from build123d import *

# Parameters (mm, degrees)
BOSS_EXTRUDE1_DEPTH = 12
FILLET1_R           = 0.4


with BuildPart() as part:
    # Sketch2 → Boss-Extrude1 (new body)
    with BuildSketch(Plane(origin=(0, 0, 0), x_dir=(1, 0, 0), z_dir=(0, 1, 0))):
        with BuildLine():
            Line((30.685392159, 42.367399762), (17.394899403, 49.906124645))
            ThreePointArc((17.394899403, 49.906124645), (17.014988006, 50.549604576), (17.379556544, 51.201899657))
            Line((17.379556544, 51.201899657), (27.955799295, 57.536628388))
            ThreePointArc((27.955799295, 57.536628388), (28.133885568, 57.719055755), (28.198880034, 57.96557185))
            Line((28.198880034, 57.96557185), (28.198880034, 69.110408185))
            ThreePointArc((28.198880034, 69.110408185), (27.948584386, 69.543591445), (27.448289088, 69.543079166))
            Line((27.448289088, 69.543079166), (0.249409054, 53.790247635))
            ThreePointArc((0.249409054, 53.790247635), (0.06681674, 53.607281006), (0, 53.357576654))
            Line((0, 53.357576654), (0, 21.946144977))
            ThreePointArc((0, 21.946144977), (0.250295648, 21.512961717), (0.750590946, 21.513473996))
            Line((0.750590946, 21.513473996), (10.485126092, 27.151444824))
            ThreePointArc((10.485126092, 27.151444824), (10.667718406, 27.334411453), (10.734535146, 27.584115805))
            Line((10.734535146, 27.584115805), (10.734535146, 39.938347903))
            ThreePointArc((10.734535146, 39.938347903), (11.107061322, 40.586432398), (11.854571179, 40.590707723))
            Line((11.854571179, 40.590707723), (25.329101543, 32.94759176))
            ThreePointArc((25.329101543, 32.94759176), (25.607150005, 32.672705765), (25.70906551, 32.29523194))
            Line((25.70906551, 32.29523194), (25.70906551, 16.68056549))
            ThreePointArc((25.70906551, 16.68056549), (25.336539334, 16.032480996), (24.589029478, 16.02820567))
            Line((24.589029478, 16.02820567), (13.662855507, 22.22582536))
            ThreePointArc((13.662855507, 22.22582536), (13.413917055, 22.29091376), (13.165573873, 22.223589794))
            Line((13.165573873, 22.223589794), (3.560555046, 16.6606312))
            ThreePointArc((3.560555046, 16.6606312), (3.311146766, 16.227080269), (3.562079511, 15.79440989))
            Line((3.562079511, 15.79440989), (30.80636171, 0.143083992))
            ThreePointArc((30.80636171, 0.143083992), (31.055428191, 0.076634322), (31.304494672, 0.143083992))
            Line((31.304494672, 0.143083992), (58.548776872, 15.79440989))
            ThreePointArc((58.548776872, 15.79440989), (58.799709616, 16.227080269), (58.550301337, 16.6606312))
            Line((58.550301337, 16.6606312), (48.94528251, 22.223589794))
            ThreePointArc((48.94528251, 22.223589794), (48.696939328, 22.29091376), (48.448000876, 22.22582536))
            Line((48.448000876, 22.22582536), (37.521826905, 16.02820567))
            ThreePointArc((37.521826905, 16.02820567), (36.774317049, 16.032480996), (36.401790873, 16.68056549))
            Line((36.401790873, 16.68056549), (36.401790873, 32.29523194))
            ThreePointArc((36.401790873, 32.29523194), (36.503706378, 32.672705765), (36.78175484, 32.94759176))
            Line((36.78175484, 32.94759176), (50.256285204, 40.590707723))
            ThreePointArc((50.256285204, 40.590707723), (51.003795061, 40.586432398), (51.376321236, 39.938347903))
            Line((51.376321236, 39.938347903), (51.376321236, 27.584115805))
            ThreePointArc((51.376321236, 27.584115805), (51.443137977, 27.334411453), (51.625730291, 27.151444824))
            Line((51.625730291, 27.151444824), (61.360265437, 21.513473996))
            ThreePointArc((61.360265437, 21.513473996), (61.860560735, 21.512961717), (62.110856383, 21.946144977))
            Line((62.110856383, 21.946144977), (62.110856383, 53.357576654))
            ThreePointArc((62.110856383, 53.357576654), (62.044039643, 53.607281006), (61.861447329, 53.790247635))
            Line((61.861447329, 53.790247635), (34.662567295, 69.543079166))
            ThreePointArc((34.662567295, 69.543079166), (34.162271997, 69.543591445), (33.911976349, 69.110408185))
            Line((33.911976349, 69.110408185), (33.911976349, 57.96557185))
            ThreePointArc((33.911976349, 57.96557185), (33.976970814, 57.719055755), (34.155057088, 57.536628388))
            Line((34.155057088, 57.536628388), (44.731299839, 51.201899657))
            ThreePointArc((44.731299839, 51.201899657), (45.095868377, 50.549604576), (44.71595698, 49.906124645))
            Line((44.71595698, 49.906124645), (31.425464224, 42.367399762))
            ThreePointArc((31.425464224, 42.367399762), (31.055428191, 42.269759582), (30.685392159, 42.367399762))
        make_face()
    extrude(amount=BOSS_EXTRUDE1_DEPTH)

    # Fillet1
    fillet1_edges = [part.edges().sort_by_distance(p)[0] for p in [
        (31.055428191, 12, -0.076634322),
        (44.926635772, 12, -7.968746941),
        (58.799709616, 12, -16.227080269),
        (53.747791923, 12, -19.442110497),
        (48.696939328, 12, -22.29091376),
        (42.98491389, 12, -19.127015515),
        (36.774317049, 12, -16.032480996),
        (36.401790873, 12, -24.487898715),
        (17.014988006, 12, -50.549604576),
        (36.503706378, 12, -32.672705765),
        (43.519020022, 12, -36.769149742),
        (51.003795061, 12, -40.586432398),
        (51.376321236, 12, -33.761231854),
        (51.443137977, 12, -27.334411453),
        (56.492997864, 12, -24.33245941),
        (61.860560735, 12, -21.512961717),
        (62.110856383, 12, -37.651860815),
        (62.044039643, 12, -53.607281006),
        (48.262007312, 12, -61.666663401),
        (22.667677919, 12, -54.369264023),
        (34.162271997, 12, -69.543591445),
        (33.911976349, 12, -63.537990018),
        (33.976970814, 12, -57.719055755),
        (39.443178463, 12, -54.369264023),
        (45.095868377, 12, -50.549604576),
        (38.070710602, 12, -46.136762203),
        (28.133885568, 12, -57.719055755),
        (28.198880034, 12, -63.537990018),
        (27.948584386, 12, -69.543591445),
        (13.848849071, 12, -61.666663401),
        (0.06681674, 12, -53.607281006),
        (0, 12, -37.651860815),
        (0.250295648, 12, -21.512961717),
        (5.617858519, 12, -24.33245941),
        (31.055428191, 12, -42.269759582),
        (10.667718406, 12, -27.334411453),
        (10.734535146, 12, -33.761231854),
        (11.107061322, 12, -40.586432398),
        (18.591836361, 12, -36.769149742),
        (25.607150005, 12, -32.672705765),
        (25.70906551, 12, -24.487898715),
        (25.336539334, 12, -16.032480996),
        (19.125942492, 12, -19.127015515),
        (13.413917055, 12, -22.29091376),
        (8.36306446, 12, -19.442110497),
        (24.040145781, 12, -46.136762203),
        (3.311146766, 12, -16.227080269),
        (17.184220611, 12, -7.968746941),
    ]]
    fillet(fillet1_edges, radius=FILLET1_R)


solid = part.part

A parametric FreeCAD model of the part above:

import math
import FreeCAD as App
import Part
import Sketcher


def edges_at(feature, points):
    """Names of the edges that pass closest to the given points."""
    edges = feature.Shape.Edges
    near = lambda p: min(range(len(edges)), key=lambda i: edges[i].distToShape(Part.Vertex(*p))[0])
    return sorted({f"Edge{near(p) + 1}" for p in points})

doc = App.newDocument("Part")
params = doc.addObject("Spreadsheet::Sheet", "Params")
for row, (alias, value) in enumerate([
    ("sketch1_radius", "0.5 mm"),
    ("sketch1_radius2", "0.5 mm"),
    ("sketch1_radius3", "0.5 mm"),
    ("sketch1_radius4", "0.5 mm"),
    ("sketch1_radius5", "0.5 mm"),
    ("pad1_length", "12 mm"),
    ("fillet_radius", "0.4 mm"),
], start=1):
    params.set(f"A{row}", alias)
    params.set(f"B{row}", "=" + value)
    params.setAlias(f"B{row}", alias)

body = doc.addObject("PartDesign::Body", "Body")

# Sketch on XZ plane
sketch1 = body.newObject("Sketcher::SketchObject", "Sketch")
sketch1.AttachmentSupport = (doc.getObject("XZ_Plane"), [""])
sketch1.MapMode = "FlatFace"
sketch1.addGeometry([
    Part.LineSegment(App.Vector(30.685392, -42.3674, 0), App.Vector(17.394899, -49.906125, 0)),  # 0
    Part.ArcOfCircle(Part.Circle(App.Vector(17.764935, -50.558484, 0), App.Vector(0, 0, 1), 0.75), math.radians(119.563073), math.radians(239.080148)),  # 1
    Part.LineSegment(App.Vector(17.379557, -51.2019, 0), App.Vector(27.955799, -57.536628, 0)),  # 2
    Part.ArcOfCircle(Part.Circle(App.Vector(27.69888, -57.965572, 0), App.Vector(0, 0, 1), 0.5), math.radians(0), math.radians(59.080148)),  # 3
    Part.LineSegment(App.Vector(28.19888, -57.965572, 0), App.Vector(28.19888, -69.110408, 0)),  # 4
    Part.ArcOfCircle(Part.Circle(App.Vector(27.69888, -69.110408, 0), App.Vector(0, 0, 1), 0.5), math.radians(-120.078224), math.radians(0)),  # 5
    Part.LineSegment(App.Vector(27.448289, -69.543079, 0), App.Vector(0.249409, -53.790248, 0)),  # 6
    Part.ArcOfCircle(Part.Circle(App.Vector(0.5, -53.357577, 0), App.Vector(0, 0, 1), 0.5), math.radians(180), math.radians(239.921776)),  # 7
    Part.LineSegment(App.Vector(0, -53.357577, 0), App.Vector(0, -21.946145, 0)),  # 8
    Part.ArcOfCircle(Part.Circle(App.Vector(0.5, -21.946145, 0), App.Vector(0, 0, 1), 0.5), math.radians(59.921776), math.radians(180)),  # 9
    Part.LineSegment(App.Vector(0.750591, -21.513474, 0), App.Vector(10.485126, -27.151445, 0)),  # 10
    Part.ArcOfCircle(Part.Circle(App.Vector(10.234535, -27.584116, 0), App.Vector(0, 0, 1), 0.5), math.radians(0), math.radians(59.921776)),  # 11
    Part.LineSegment(App.Vector(10.734535, -27.584116, 0), App.Vector(10.734535, -39.938348, 0)),  # 12
    Part.ArcOfCircle(Part.Circle(App.Vector(11.484535, -39.938348, 0), App.Vector(0, 0, 1), 0.75), math.radians(180), math.radians(299.563073)),  # 13
    Part.LineSegment(App.Vector(11.854571, -40.590708, 0), App.Vector(25.329102, -32.947592, 0)),  # 14
    Part.ArcOfCircle(Part.Circle(App.Vector(24.959066, -32.295232, 0), App.Vector(0, 0, 1), 0.75), math.radians(-60.436927), math.radians(0)),  # 15
    Part.LineSegment(App.Vector(25.709066, -32.295232, 0), App.Vector(25.709066, -16.680565, 0)),  # 16
    Part.ArcOfCircle(Part.Circle(App.Vector(24.959066, -16.680565, 0), App.Vector(0, 0, 1), 0.75), math.radians(0), math.radians(119.563073)),  # 17
    Part.LineSegment(App.Vector(24.589029, -16.028206, 0), App.Vector(13.662856, -22.225825, 0)),  # 18
    Part.ArcOfCircle(Part.Circle(App.Vector(13.416165, -21.790919, 0), App.Vector(0, 0, 1), 0.5), math.radians(-120.078224), math.radians(-60.436927)),  # 19
    Part.LineSegment(App.Vector(13.165574, -22.22359, 0), App.Vector(3.560555, -16.660631, 0)),  # 20
    Part.ArcOfCircle(Part.Circle(App.Vector(3.811146, -16.22796, 0), App.Vector(0, 0, 1), 0.5), math.radians(119.876554), math.radians(239.921776)),  # 21
    Part.LineSegment(App.Vector(3.56208, -15.79441, 0), App.Vector(30.806362, -0.143084, 0)),  # 22
    Part.ArcOfCircle(Part.Circle(App.Vector(31.055428, -0.576634, 0), App.Vector(0, 0, 1), 0.5), math.radians(60.123446), math.radians(119.876554)),  # 23
    Part.LineSegment(App.Vector(31.304495, -0.143084, 0), App.Vector(58.548777, -15.79441, 0)),  # 24
    Part.ArcOfCircle(Part.Circle(App.Vector(58.29971, -16.22796, 0), App.Vector(0, 0, 1), 0.5), math.radians(-59.921776), math.radians(60.123445)),  # 25
    Part.LineSegment(App.Vector(58.550301, -16.660631, 0), App.Vector(48.945283, -22.22359, 0)),  # 26
    Part.ArcOfCircle(Part.Circle(App.Vector(48.694692, -21.790919, 0), App.Vector(0, 0, 1), 0.5), math.radians(-119.563073), math.radians(-59.921776)),  # 27
    Part.LineSegment(App.Vector(48.448001, -22.225825, 0), App.Vector(37.521827, -16.028206, 0)),  # 28
    Part.ArcOfCircle(Part.Circle(App.Vector(37.151791, -16.680565, 0), App.Vector(0, 0, 1), 0.75), math.radians(60.436927), math.radians(180)),  # 29
    Part.LineSegment(App.Vector(36.401791, -16.680565, 0), App.Vector(36.401791, -32.295232, 0)),  # 30
    Part.ArcOfCircle(Part.Circle(App.Vector(37.151791, -32.295232, 0), App.Vector(0, 0, 1), 0.75), math.radians(180), math.radians(240.436927)),  # 31
    Part.LineSegment(App.Vector(36.781755, -32.947592, 0), App.Vector(50.256285, -40.590708, 0)),  # 32
    Part.ArcOfCircle(Part.Circle(App.Vector(50.626321, -39.938348, 0), App.Vector(0, 0, 1), 0.75), math.radians(-119.563073), math.radians(0)),  # 33
    Part.LineSegment(App.Vector(51.376321, -39.938348, 0), App.Vector(51.376321, -27.584116, 0)),  # 34
    Part.ArcOfCircle(Part.Circle(App.Vector(51.876321, -27.584116, 0), App.Vector(0, 0, 1), 0.5), math.radians(120.078224), math.radians(180)),  # 35
    Part.LineSegment(App.Vector(51.62573, -27.151445, 0), App.Vector(61.360265, -21.513474, 0)),  # 36
    Part.ArcOfCircle(Part.Circle(App.Vector(61.610856, -21.946145, 0), App.Vector(0, 0, 1), 0.5), math.radians(0), math.radians(120.078224)),  # 37
    Part.LineSegment(App.Vector(62.110856, -21.946145, 0), App.Vector(62.110856, -53.357577, 0)),  # 38
    Part.ArcOfCircle(Part.Circle(App.Vector(61.610856, -53.357577, 0), App.Vector(0, 0, 1), 0.5), math.radians(-59.921776), math.radians(0)),  # 39
    Part.LineSegment(App.Vector(61.861447, -53.790248, 0), App.Vector(34.662567, -69.543079, 0)),  # 40
    Part.ArcOfCircle(Part.Circle(App.Vector(34.411976, -69.110408, 0), App.Vector(0, 0, 1), 0.5), math.radians(180), math.radians(300.078224)),  # 41
    Part.LineSegment(App.Vector(33.911976, -69.110408, 0), App.Vector(33.911976, -57.965572, 0)),  # 42
    Part.ArcOfCircle(Part.Circle(App.Vector(34.411976, -57.965572, 0), App.Vector(0, 0, 1), 0.5), math.radians(120.919852), math.radians(180)),  # 43
    Part.LineSegment(App.Vector(34.155057, -57.536628, 0), App.Vector(44.7313, -51.2019, 0)),  # 44
    Part.ArcOfCircle(Part.Circle(App.Vector(44.345921, -50.558484, 0), App.Vector(0, 0, 1), 0.75), math.radians(-59.080148), math.radians(60.436927)),  # 45
    Part.LineSegment(App.Vector(44.715957, -49.906125, 0), App.Vector(31.425464, -42.3674, 0)),  # 46
    Part.ArcOfCircle(Part.Circle(App.Vector(31.055428, -43.01976, 0), App.Vector(0, 0, 1), 0.75), math.radians(60.436927), math.radians(119.563073)),  # 47
], False)
sketch1.addConstraint([
    Sketcher.Constraint("Coincident", 0, 2, 1, 1),
    Sketcher.Constraint("Coincident", 1, 2, 2, 1),
    Sketcher.Constraint("Coincident", 2, 2, 3, 2),
    Sketcher.Constraint("Coincident", 3, 1, 4, 1),
    Sketcher.Constraint("Coincident", 4, 2, 5, 2),
    Sketcher.Constraint("Coincident", 5, 1, 6, 1),
    Sketcher.Constraint("Coincident", 6, 2, 7, 2),
    Sketcher.Constraint("Coincident", 7, 1, 8, 1),
    Sketcher.Constraint("Coincident", 8, 2, 9, 2),
    Sketcher.Constraint("Coincident", 9, 1, 10, 1),
    Sketcher.Constraint("Coincident", 10, 2, 11, 2),
    Sketcher.Constraint("Coincident", 11, 1, 12, 1),
    Sketcher.Constraint("Coincident", 12, 2, 13, 1),
    Sketcher.Constraint("Coincident", 13, 2, 14, 1),
    Sketcher.Constraint("Coincident", 14, 2, 15, 1),
    Sketcher.Constraint("Coincident", 15, 2, 16, 1),
    Sketcher.Constraint("Coincident", 16, 2, 17, 1),
    Sketcher.Constraint("Coincident", 17, 2, 18, 1),
    Sketcher.Constraint("Coincident", 18, 2, 19, 2),
    Sketcher.Constraint("Coincident", 19, 1, 20, 1),
    Sketcher.Constraint("Coincident", 20, 2, 21, 2),
    Sketcher.Constraint("Coincident", 21, 1, 22, 1),
    Sketcher.Constraint("Coincident", 22, 2, 23, 2),
    Sketcher.Constraint("Coincident", 23, 1, 24, 1),
    Sketcher.Constraint("Coincident", 24, 2, 25, 2),
    Sketcher.Constraint("Coincident", 25, 1, 26, 1),
    Sketcher.Constraint("Coincident", 26, 2, 27, 2),
    Sketcher.Constraint("Coincident", 27, 1, 28, 1),
    Sketcher.Constraint("Coincident", 28, 2, 29, 1),
    Sketcher.Constraint("Coincident", 29, 2, 30, 1),
    Sketcher.Constraint("Coincident", 30, 2, 31, 1),
    Sketcher.Constraint("Coincident", 31, 2, 32, 1),
    Sketcher.Constraint("Coincident", 32, 2, 33, 1),
    Sketcher.Constraint("Coincident", 33, 2, 34, 1),
    Sketcher.Constraint("Coincident", 34, 2, 35, 2),
    Sketcher.Constraint("Coincident", 35, 1, 36, 1),
    Sketcher.Constraint("Coincident", 36, 2, 37, 2),
    Sketcher.Constraint("Coincident", 37, 1, 38, 1),
    Sketcher.Constraint("Coincident", 38, 2, 39, 2),
    Sketcher.Constraint("Coincident", 39, 1, 40, 1),
    Sketcher.Constraint("Coincident", 40, 2, 41, 2),
    Sketcher.Constraint("Coincident", 41, 1, 42, 1),
    Sketcher.Constraint("Coincident", 42, 2, 43, 2),
    Sketcher.Constraint("Coincident", 43, 1, 44, 1),
    Sketcher.Constraint("Coincident", 44, 2, 45, 1),
    Sketcher.Constraint("Coincident", 45, 2, 46, 1),
    Sketcher.Constraint("Coincident", 46, 2, 47, 1),
    Sketcher.Constraint("Coincident", 47, 2, 0, 1),
    Sketcher.Constraint("Vertical", 4),
    Sketcher.Constraint("Vertical", 8),
    Sketcher.Constraint("Vertical", 12),
    Sketcher.Constraint("Vertical", 16),
    Sketcher.Constraint("Vertical", 30),
    Sketcher.Constraint("Vertical", 34),
    Sketcher.Constraint("Vertical", 38),
    Sketcher.Constraint("Vertical", 42),
    Sketcher.Constraint("PointOnObject", 7, 1, -2),
    Sketcher.Constraint("Radius", 3, 0.5),
    Sketcher.Constraint("Radius", 5, 0.5),
    Sketcher.Constraint("Radius", 7, 0.5),
    Sketcher.Constraint("Radius", 9, 0.5),
    Sketcher.Constraint("Radius", 11, 0.5),
    Sketcher.Constraint("Radius", 19, 0.5),
    Sketcher.Constraint("Radius", 21, 0.5),
    Sketcher.Constraint("Radius", 23, 0.5),
    Sketcher.Constraint("Radius", 25, 0.5),
    Sketcher.Constraint("Radius", 27, 0.5),
    Sketcher.Constraint("Radius", 35, 0.5),
    Sketcher.Constraint("Radius", 37, 0.5),
    Sketcher.Constraint("Radius", 39, 0.5),
    Sketcher.Constraint("Radius", 41, 0.5),
    Sketcher.Constraint("Radius", 43, 0.5),
    Sketcher.Constraint("Radius", 1, 0.75),
    Sketcher.Constraint("Radius", 13, 0.75),
    Sketcher.Constraint("Radius", 15, 0.75),
    Sketcher.Constraint("Radius", 17, 0.75),
    Sketcher.Constraint("Radius", 29, 0.75),
    Sketcher.Constraint("Radius", 31, 0.75),
    Sketcher.Constraint("Radius", 33, 0.75),
    Sketcher.Constraint("Radius", 45, 0.75),
    Sketcher.Constraint("Radius", 47, 0.75),
    Sketcher.Constraint("DistanceX", -1, 1, 27, 1, 48.448001),
    Sketcher.Constraint("DistanceY", 8, 1, 8, 2, 31.411432),
    Sketcher.Constraint("DistanceY", 38, 2, 38, 1, 31.411432),
    Sketcher.Constraint("DistanceX", -1, 1, 0, 2, 17.394899),
    Sketcher.Constraint("DistanceY", 1, 2, -1, 1, 51.2019),
    Sketcher.Constraint("DistanceX", -1, 1, 2, 2, 27.955799),
    Sketcher.Constraint("DistanceX", -1, 1, 14, 2, 25.329102),
    Sketcher.Constraint("DistanceX", -1, 1, 25, 1, 58.550301),
    Sketcher.Constraint("DistanceX", -1, 1, 44, 2, 44.7313),
    Sketcher.Constraint("DistanceY", 44, 2, -1, 1, 51.2019),
    Sketcher.Constraint("DistanceY", 46, 2, -1, 1, 42.3674),
    Sketcher.Constraint("DistanceY", 47, 2, -1, 1, 42.3674),
    Sketcher.Constraint("Distance", 0, 15.279711),
    Sketcher.Constraint("Distance", 2, 12.328248),
    Sketcher.Constraint("Distance", 10, 11.249351),
    Sketcher.Constraint("Distance", 18, 12.561519),
    Sketcher.Constraint("Distance", 20, 11.09968),
    Sketcher.Constraint("Distance", 26, 11.09968),
    Sketcher.Constraint("Distance", 28, 12.561519),
    Sketcher.Constraint("Distance", 36, 11.249351),
    Sketcher.Constraint("Distance", 44, 12.328248),
    Sketcher.Constraint("Distance", 46, 15.279711),
    Sketcher.Constraint("DistanceY", 4, 2, 4, 1, 11.144836),
    Sketcher.Constraint("DistanceY", 12, 2, 12, 1, 12.354232),
    Sketcher.Constraint("DistanceY", 16, 1, 16, 2, 15.614666),
    Sketcher.Constraint("DistanceY", 30, 2, 30, 1, 15.614666),
    Sketcher.Constraint("DistanceY", 34, 1, 34, 2, 12.354232),
    Sketcher.Constraint("DistanceY", 42, 1, 42, 2, 11.144836),
    Sketcher.Constraint("DistanceX", -1, 1, 3, 3, 27.69888),
    Sketcher.Constraint("DistanceY", 3, 3, -1, 1, 57.965572),
    Sketcher.Constraint("DistanceY", 5, 3, -1, 1, 69.110408),
    Sketcher.Constraint("DistanceY", 15, 3, -1, 1, 32.295232),
    Sketcher.Constraint("DistanceY", 19, 3, -1, 1, 21.790919),
    Sketcher.Constraint("DistanceY", 21, 3, -1, 1, 16.22796),
    Sketcher.Constraint("DistanceX", -1, 1, 23, 3, 31.055428),
    Sketcher.Constraint("DistanceX", -1, 1, 25, 3, 58.29971),
    Sketcher.Constraint("DistanceY", 25, 3, -1, 1, 16.22796),
    Sketcher.Constraint("DistanceX", -1, 1, 27, 3, 48.694692),
    Sketcher.Constraint("DistanceY", 27, 3, -1, 1, 21.790919),
    Sketcher.Constraint("DistanceX", -1, 1, 29, 3, 37.151791),
    Sketcher.Constraint("DistanceY", 31, 3, -1, 1, 32.295232),
    Sketcher.Constraint("DistanceX", -1, 1, 33, 3, 50.626321),
    Sketcher.Constraint("DistanceY", 41, 3, -1, 1, 69.110408),
    Sketcher.Constraint("DistanceY", 43, 3, -1, 1, 57.965572),
    Sketcher.Constraint("DistanceX", -1, 1, 45, 3, 44.345921),
    Sketcher.Constraint("DistanceX", -1, 1, 47, 3, 31.055428),
    Sketcher.Constraint("DistanceY", 47, 3, -1, 1, 43.01976),
    Sketcher.Constraint("DistanceY", 3, 1, -1, 1, 57.965572),
    Sketcher.Constraint("DistanceX", -1, 1, 5, 1, 27.448289),
    Sketcher.Constraint("DistanceX", -1, 1, 6, 2, 0.249409),
    Sketcher.Constraint("DistanceX", -1, 1, 9, 1, 0.750591),
    Sketcher.Constraint("DistanceX", -1, 1, 13, 2, 11.854571),
    Sketcher.Constraint("DistanceY", 14, 2, -1, 1, 32.947592),
    Sketcher.Constraint("DistanceY", 15, 2, -1, 1, 32.295232),
    Sketcher.Constraint("DistanceX", -1, 1, 17, 2, 24.589029),
    Sketcher.Constraint("DistanceY", 19, 1, -1, 1, 22.22359),
    Sketcher.Constraint("DistanceY", 20, 2, -1, 1, 16.660631),
    Sketcher.Constraint("DistanceX", -1, 1, 21, 1, 3.56208),
    Sketcher.Constraint("DistanceY", 21, 1, -1, 1, 15.79441),
    Sketcher.Constraint("DistanceX", -1, 1, 22, 2, 30.806362),
    Sketcher.Constraint("DistanceY", 24, 2, -1, 1, 15.79441),
    Sketcher.Constraint("DistanceY", 30, 2, -1, 1, 32.295232),
    Sketcher.Constraint("DistanceY", 31, 2, -1, 1, 32.947592),
    Sketcher.Constraint("DistanceX", -1, 1, 35, 1, 51.62573),
    Sketcher.Constraint("DistanceY", 40, 2, -1, 1, 69.543079),
    Sketcher.Constraint("DistanceY", 41, 1, -1, 1, 69.110408),
    Sketcher.Constraint("DistanceY", 43, 1, -1, 1, 57.536628),
    Sketcher.Constraint("Distance", 6, 31.431366),
    Sketcher.Constraint("Distance", 14, 15.491294),
    Sketcher.Constraint("Distance", 22, 31.419976),
    Sketcher.Constraint("Distance", 24, 31.419976),
    Sketcher.Constraint("Distance", 32, 15.491294),
    Sketcher.Constraint("Distance", 40, 31.431366),
    Sketcher.Constraint("DistanceY", 9, 3, -1, 1, 21.946145),
    Sketcher.Constraint("DistanceX", -1, 1, 11, 3, 10.234535),
    Sketcher.Constraint("DistanceY", 11, 3, -1, 1, 27.584116),
    Sketcher.Constraint("DistanceY", 17, 3, -1, 1, 16.680565),
    Sketcher.Constraint("DistanceY", 29, 3, -1, 1, 16.680565),
    Sketcher.Constraint("DistanceY", 33, 3, -1, 1, 39.938348),
    Sketcher.Constraint("DistanceY", 35, 3, -1, 1, 27.584116),
    Sketcher.Constraint("DistanceX", -1, 1, 37, 3, 61.610856),
    Sketcher.Constraint("DistanceY", 37, 3, -1, 1, 21.946145),
    Sketcher.Constraint("DistanceY", 39, 3, -1, 1, 53.357577),
    Sketcher.Constraint("DistanceY", 7, 1, -1, 1, 53.357577),
    Sketcher.Constraint("DistanceY", 11, 1, -1, 1, 27.584116),
    Sketcher.Constraint("DistanceY", 33, 2, -1, 1, 39.938348),
    Sketcher.Constraint("DistanceY", 37, 1, -1, 1, 21.946145),
])
sketch1.setExpression("Constraints[57]", "Params.sketch1_radius")
sketch1.setExpression("Constraints[58]", "Params.sketch1_radius2")
sketch1.setExpression("Constraints[59]", "Params.sketch1_radius3")
sketch1.setExpression("Constraints[60]", "Params.sketch1_radius4")
sketch1.setExpression("Constraints[61]", "Params.sketch1_radius5")
pad1 = body.newObject("PartDesign::Pad", "Pad")
pad1.Profile = sketch1
pad1.setExpression("Length", "Params.pad1_length")
pad1.Reversed = True
doc.recompute()

fillet = body.newObject("PartDesign::Fillet", "Fillet")
fillet.Base = (pad1, edges_at(pad1, [
    (31.055, 12, -0.077),
    (44.927, 12, -7.969),
    (58.8, 12, -16.227),
    (53.748, 12, -19.442),
    (48.697, 12, -22.291),
    (42.985, 12, -19.127),
    (36.774, 12, -16.032),
    (36.402, 12, -24.488),
    (17.015, 12, -50.55),
    (36.504, 12, -32.673),
    (43.519, 12, -36.769),
    (51.004, 12, -40.586),
    (51.376, 12, -33.761),
    (51.443, 12, -27.334),
    (56.493, 12, -24.332),
    (61.861, 12, -21.513),
    (62.111, 12, -37.652),
    (62.044, 12, -53.607),
    (48.262, 12, -61.667),
    (22.668, 12, -54.369),
    (34.162, 12, -69.544),
    (33.912, 12, -63.538),
    (33.977, 12, -57.719),
    (39.443, 12, -54.369),
    (45.096, 12, -50.55),
    (38.071, 12, -46.137),
    (28.134, 12, -57.719),
    (28.199, 12, -63.538),
    (27.949, 12, -69.544),
    (13.849, 12, -61.667),
    (0.067, 12, -53.607),
    (0, 12, -37.652),
    (0.25, 12, -21.513),
    (5.618, 12, -24.332),
    (31.055, 12, -42.27),
    (10.668, 12, -27.334),
    (10.735, 12, -33.761),
    (11.107, 12, -40.586),
    (18.592, 12, -36.769),
    (25.607, 12, -32.673),
    (25.709, 12, -24.488),
    (25.337, 12, -16.032),
    (19.126, 12, -19.127),
    (13.414, 12, -22.291),
    (8.363, 12, -19.442),
    (24.04, 12, -46.137),
    (3.311, 12, -16.227),
    (17.184, 12, -7.969),
]))
fillet.setExpression("Radius", "Params.fillet_radius")

doc.recompute()
